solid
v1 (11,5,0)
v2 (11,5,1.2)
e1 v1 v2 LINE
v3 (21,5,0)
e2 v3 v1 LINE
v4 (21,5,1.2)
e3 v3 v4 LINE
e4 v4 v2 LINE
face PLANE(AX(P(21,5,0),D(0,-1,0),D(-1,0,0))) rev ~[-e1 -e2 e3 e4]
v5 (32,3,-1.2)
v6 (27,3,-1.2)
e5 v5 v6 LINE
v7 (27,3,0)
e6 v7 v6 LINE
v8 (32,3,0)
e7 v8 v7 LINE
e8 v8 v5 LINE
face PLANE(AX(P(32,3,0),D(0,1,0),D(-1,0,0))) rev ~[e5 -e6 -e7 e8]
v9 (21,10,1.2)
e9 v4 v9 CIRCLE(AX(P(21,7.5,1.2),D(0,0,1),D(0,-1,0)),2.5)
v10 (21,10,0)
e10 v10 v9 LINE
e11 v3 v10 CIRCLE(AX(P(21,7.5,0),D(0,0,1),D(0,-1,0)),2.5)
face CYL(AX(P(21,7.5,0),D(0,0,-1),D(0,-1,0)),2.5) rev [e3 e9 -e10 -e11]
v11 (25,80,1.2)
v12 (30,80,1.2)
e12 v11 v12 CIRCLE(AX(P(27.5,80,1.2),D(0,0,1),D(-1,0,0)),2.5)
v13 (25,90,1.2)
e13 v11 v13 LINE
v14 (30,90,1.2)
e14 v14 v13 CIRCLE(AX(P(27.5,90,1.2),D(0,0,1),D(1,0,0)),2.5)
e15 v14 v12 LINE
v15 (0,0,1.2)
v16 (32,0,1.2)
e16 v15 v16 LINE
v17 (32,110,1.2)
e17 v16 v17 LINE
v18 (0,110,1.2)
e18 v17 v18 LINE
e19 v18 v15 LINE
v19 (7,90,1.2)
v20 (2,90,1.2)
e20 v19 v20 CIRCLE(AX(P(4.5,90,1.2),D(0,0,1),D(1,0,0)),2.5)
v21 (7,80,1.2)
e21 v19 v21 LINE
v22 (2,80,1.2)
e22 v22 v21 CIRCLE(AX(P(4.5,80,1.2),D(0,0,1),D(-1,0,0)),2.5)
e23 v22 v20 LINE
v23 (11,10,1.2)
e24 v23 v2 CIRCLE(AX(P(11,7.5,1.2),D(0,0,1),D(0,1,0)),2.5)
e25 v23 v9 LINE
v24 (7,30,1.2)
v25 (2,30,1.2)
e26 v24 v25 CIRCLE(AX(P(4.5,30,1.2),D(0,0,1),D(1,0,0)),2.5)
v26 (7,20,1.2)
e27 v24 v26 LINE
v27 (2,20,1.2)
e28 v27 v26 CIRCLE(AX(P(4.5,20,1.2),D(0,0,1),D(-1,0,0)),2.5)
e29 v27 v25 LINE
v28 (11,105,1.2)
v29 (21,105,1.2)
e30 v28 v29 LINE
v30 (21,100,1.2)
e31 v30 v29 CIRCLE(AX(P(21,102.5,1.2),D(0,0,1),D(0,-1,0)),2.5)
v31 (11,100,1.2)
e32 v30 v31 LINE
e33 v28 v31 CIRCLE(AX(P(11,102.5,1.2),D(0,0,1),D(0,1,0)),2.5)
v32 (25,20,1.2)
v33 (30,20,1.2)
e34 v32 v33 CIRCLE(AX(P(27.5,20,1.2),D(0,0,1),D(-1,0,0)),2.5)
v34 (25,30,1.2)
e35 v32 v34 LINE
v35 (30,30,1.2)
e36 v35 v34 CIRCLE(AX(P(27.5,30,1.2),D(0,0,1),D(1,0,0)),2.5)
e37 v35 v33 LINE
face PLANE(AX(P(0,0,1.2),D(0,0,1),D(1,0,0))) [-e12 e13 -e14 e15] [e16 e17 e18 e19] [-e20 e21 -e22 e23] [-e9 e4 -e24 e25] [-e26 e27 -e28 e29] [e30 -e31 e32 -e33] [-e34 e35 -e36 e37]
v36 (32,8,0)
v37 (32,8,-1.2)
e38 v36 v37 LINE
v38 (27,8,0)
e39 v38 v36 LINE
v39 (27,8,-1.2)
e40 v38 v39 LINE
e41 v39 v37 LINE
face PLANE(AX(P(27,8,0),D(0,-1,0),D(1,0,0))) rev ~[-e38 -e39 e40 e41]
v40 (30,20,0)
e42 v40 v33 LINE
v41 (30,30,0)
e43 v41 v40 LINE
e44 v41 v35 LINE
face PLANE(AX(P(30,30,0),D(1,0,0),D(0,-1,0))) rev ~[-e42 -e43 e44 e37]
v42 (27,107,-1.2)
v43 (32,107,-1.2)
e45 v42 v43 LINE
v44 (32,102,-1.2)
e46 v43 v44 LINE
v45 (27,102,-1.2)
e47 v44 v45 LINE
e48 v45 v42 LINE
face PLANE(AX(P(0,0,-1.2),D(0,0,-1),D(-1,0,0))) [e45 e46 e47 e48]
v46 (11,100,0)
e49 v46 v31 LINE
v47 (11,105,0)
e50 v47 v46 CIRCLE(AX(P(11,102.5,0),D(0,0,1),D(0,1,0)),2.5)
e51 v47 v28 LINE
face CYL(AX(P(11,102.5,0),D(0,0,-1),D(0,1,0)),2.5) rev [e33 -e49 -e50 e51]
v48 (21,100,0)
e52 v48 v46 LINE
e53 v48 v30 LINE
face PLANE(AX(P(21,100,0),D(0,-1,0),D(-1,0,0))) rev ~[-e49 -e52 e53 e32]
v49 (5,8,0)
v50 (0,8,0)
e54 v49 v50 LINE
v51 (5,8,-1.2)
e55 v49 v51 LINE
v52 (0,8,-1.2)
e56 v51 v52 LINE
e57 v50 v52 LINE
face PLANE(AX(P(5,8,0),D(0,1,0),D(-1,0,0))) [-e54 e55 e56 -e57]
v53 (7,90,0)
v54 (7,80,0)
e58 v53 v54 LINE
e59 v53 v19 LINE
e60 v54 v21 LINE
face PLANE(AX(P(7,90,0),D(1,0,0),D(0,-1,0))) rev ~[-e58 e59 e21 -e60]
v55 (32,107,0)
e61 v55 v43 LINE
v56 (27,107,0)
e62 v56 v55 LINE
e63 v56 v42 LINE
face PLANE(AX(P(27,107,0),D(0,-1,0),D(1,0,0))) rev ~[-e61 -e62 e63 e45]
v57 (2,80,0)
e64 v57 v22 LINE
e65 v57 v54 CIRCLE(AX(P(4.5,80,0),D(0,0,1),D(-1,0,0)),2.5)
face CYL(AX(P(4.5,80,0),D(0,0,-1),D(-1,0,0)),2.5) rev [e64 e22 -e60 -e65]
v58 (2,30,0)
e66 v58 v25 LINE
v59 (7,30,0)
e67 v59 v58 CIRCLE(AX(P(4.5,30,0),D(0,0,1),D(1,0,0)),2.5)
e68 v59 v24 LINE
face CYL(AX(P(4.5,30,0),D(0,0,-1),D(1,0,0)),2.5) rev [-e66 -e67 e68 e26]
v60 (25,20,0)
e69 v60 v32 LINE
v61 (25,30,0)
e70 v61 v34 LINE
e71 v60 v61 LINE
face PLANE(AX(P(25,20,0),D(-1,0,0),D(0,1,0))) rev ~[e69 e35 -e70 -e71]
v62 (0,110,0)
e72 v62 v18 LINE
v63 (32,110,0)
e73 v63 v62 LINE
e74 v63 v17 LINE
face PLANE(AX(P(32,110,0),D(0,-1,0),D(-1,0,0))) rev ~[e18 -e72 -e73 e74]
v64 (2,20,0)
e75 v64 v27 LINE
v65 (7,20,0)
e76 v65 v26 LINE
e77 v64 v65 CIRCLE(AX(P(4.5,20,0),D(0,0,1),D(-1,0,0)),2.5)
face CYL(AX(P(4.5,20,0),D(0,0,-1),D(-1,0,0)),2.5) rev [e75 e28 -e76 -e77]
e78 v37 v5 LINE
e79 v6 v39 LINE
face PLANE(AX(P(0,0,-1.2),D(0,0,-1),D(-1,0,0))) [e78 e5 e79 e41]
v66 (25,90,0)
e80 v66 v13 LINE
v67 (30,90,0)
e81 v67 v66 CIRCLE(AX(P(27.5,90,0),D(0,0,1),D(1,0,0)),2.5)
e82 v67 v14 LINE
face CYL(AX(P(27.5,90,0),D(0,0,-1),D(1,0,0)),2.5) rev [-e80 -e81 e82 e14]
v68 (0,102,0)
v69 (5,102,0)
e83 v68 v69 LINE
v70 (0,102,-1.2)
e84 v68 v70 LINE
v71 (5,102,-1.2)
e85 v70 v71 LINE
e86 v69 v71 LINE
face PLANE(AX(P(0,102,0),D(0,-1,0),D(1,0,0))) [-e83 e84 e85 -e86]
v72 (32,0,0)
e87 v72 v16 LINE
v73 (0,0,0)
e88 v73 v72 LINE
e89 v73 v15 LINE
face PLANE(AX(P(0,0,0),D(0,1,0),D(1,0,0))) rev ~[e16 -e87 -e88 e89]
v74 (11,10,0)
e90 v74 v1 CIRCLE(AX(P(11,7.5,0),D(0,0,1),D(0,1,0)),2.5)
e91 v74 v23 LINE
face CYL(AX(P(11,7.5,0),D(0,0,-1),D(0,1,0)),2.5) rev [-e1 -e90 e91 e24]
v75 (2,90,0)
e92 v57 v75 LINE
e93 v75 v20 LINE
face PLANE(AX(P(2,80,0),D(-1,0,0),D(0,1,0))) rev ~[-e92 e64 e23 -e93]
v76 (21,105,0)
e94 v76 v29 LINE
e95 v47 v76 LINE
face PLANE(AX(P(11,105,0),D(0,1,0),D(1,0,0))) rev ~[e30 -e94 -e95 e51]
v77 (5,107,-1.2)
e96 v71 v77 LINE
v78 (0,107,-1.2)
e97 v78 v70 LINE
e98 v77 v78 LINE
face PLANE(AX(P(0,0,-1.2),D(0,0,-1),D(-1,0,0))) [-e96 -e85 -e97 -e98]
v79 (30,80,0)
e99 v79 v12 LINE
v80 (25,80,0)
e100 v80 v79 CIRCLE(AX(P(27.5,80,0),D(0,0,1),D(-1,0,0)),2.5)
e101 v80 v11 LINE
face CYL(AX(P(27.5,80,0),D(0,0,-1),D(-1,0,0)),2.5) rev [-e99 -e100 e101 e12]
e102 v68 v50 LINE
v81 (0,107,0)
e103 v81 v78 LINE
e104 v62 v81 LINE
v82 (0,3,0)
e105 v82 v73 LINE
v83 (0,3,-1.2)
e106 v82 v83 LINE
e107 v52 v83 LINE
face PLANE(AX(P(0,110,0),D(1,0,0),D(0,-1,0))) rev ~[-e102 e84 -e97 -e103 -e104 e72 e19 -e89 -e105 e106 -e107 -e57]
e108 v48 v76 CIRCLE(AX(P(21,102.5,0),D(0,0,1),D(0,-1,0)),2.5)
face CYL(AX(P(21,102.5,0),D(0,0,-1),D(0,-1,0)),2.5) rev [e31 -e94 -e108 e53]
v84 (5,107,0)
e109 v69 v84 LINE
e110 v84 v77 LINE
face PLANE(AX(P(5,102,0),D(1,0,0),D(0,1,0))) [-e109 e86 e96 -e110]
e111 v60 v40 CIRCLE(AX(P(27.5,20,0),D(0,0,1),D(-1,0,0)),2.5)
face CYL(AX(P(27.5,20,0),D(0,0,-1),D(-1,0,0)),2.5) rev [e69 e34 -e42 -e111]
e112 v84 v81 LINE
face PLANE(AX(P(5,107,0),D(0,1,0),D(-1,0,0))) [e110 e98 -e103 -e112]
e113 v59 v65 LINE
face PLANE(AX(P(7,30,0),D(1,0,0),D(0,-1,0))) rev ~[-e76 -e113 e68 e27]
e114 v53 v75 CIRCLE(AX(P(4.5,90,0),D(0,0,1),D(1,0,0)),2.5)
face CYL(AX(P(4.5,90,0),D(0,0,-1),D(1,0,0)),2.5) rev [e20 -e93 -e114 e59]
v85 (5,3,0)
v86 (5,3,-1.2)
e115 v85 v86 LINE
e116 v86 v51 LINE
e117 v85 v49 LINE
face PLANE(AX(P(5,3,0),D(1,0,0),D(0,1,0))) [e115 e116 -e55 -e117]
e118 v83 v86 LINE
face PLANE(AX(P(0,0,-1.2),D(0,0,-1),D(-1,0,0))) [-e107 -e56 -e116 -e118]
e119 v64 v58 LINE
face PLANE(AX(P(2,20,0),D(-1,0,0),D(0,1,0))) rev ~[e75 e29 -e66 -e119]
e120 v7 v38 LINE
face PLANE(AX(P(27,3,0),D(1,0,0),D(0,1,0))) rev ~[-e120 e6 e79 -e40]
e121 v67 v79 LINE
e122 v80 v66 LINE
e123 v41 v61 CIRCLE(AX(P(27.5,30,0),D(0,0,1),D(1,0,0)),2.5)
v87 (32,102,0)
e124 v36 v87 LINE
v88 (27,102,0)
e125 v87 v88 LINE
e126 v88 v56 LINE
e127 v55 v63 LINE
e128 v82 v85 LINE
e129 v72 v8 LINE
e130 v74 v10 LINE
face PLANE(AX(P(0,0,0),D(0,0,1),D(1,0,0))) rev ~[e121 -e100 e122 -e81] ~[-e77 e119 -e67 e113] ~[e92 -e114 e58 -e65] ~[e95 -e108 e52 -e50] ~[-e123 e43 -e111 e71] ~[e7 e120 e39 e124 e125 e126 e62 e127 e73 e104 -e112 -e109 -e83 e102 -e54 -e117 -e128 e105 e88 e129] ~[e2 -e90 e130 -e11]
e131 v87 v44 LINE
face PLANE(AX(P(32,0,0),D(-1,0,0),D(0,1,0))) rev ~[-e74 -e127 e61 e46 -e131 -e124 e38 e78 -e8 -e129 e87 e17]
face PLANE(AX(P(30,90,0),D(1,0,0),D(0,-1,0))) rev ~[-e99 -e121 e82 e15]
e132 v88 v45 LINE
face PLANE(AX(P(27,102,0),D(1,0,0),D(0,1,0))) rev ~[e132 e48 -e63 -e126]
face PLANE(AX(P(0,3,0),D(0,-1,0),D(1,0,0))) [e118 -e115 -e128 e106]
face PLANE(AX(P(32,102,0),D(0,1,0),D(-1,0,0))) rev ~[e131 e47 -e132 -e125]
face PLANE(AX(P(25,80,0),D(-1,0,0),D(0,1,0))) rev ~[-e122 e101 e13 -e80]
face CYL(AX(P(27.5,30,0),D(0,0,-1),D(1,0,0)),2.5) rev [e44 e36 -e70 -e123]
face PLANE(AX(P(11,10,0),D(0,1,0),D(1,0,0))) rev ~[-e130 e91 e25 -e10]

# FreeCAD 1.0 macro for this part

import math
import FreeCAD as App
import Part
import Sketcher

V = App.Vector
Q = App.Units.Quantity

doc = App.newDocument("Part")
body = doc.addObject("PartDesign::Body", "Body")

sketch1 = body.newObject("Sketcher::SketchObject", "Sketch")
sketch1.AttachmentSupport = (doc.getObject("XY_Plane"), [""])
sketch1.MapMode = "FlatFace"
sketch1.addGeometry([
    Part.LineSegment(V(0, 110, 0), V(0, 0, 0)),
    Part.LineSegment(V(0, 0, 0), V(32, 0, 0)),
    Part.LineSegment(V(32, 0, 0), V(32, 110, 0)),
    Part.LineSegment(V(32, 110, 0), V(0, 110, 0)),
    Part.ArcOfCircle(Part.Circle(V(4.5, 30, 0), V(0, 0, 1), 2.5), math.radians(0), math.radians(180)),
    Part.LineSegment(V(7, 30, 0), V(7, 20, 0)),
    Part.ArcOfCircle(Part.Circle(V(4.5, 20, 0), V(0, 0, 1), 2.5), math.radians(180), math.radians(360)),
    Part.LineSegment(V(2, 20, 0), V(2, 30, 0)),
    Part.ArcOfCircle(Part.Circle(V(11, 7.5, 0), V(0, 0, 1), 2.5), math.radians(90), math.radians(270)),
    Part.LineSegment(V(11, 10, 0), V(21, 10, 0)),
    Part.ArcOfCircle(Part.Circle(V(21, 7.5, 0), V(0, 0, 1), 2.5), math.radians(-90), math.radians(90)),
    Part.LineSegment(V(21, 5, 0), V(11, 5, 0)),
    Part.ArcOfCircle(Part.Circle(V(27.5, 30, 0), V(0, 0, 1), 2.5), math.radians(0), math.radians(180)),
    Part.LineSegment(V(30, 30, 0), V(30, 20, 0)),
    Part.ArcOfCircle(Part.Circle(V(27.5, 20, 0), V(0, 0, 1), 2.5), math.radians(180), math.radians(360)),
    Part.LineSegment(V(25, 20, 0), V(25, 30, 0)),
    Part.ArcOfCircle(Part.Circle(V(4.5, 90, 0), V(0, 0, 1), 2.5), math.radians(0), math.radians(180)),
    Part.LineSegment(V(7, 90, 0), V(7, 80, 0)),
    Part.ArcOfCircle(Part.Circle(V(4.5, 80, 0), V(0, 0, 1), 2.5), math.radians(180), math.radians(360)),
    Part.LineSegment(V(2, 80, 0), V(2, 90, 0)),
    Part.ArcOfCircle(Part.Circle(V(11, 102.5, 0), V(0, 0, 1), 2.5), math.radians(90), math.radians(270)),
    Part.LineSegment(V(11, 105, 0), V(21, 105, 0)),
    Part.ArcOfCircle(Part.Circle(V(21, 102.5, 0), V(0, 0, 1), 2.5), math.radians(-90), math.radians(90)),
    Part.LineSegment(V(21, 100, 0), V(11, 100, 0)),
    Part.ArcOfCircle(Part.Circle(V(27.5, 90, 0), V(0, 0, 1), 2.5), math.radians(0), math.radians(180)),
    Part.LineSegment(V(30, 90, 0), V(30, 80, 0)),
    Part.ArcOfCircle(Part.Circle(V(27.5, 80, 0), V(0, 0, 1), 2.5), math.radians(180), math.radians(360)),
    Part.LineSegment(V(25, 80, 0), V(25, 90, 0)),
], False)
sketch1.addConstraint([
    Sketcher.Constraint("Coincident", 0, 2, 1, 1),
    Sketcher.Constraint("Coincident", 1, 2, 2, 1),
    Sketcher.Constraint("Coincident", 2, 2, 3, 1),
    Sketcher.Constraint("Coincident", 3, 2, 0, 1),
    Sketcher.Constraint("Tangent", 4, 1, 5, 1),
    Sketcher.Constraint("Tangent", 5, 2, 6, 2),
    Sketcher.Constraint("Tangent", 6, 1, 7, 1),
    Sketcher.Constraint("Tangent", 7, 2, 4, 2),
    Sketcher.Constraint("Tangent", 8, 1, 9, 1),
    Sketcher.Constraint("Tangent", 9, 2, 10, 2),
    Sketcher.Constraint("Tangent", 10, 1, 11, 1),
    Sketcher.Constraint("Tangent", 11, 2, 8, 2),
    Sketcher.Constraint("Tangent", 12, 1, 13, 1),
    Sketcher.Constraint("Tangent", 13, 2, 14, 2),
    Sketcher.Constraint("Tangent", 14, 1, 15, 1),
    Sketcher.Constraint("Tangent", 15, 2, 12, 2),
    Sketcher.Constraint("Tangent", 16, 1, 17, 1),
    Sketcher.Constraint("Tangent", 17, 2, 18, 2),
    Sketcher.Constraint("Tangent", 18, 1, 19, 1),
    Sketcher.Constraint("Tangent", 19, 2, 16, 2),
    Sketcher.Constraint("Tangent", 20, 1, 21, 1),
    Sketcher.Constraint("Tangent", 21, 2, 22, 2),
    Sketcher.Constraint("Tangent", 22, 1, 23, 1),
    Sketcher.Constraint("Tangent", 23, 2, 20, 2),
    Sketcher.Constraint("Tangent", 24, 1, 25, 1),
    Sketcher.Constraint("Tangent", 25, 2, 26, 2),
    Sketcher.Constraint("Tangent", 26, 1, 27, 1),
    Sketcher.Constraint("Tangent", 27, 2, 24, 2),
    Sketcher.Constraint("Vertical", 0),
    Sketcher.Constraint("Horizontal", 1),
    Sketcher.Constraint("Vertical", 2),
    Sketcher.Constraint("Horizontal", 3),
    Sketcher.Constraint("Vertical", 5),
    Sketcher.Constraint("Vertical", 7),
    Sketcher.Constraint("Horizontal", 9),
    Sketcher.Constraint("Horizontal", 11),
    Sketcher.Constraint("Vertical", 13),
    Sketcher.Constraint("Vertical", 15),
    Sketcher.Constraint("Vertical", 17),
    Sketcher.Constraint("Vertical", 19),
    Sketcher.Constraint("Horizontal", 21),
    Sketcher.Constraint("Horizontal", 23),
    Sketcher.Constraint("Vertical", 25),
    Sketcher.Constraint("Vertical", 27),
    Sketcher.Constraint("Coincident", 0, 2, -1, 1),
    Sketcher.Constraint("Equal", 6, 8),
    Sketcher.Constraint("Equal", 10, 12),
    Sketcher.Constraint("Equal", 14, 16),
    Sketcher.Constraint("Equal", 18, 20),
    Sketcher.Constraint("Equal", 22, 24),
    Sketcher.Constraint("Horizontal", 4, 3, 12, 3),
    Sketcher.Constraint("Horizontal", 6, 3, 14, 3),
    Sketcher.Constraint("Horizontal", 16, 3, 24, 3),
    Sketcher.Constraint("Horizontal", 18, 3, 26, 3),
    Sketcher.Constraint("Vertical", 6, 3, 16, 3),
    Sketcher.Constraint("Vertical", 8, 3, 20, 3),
    Sketcher.Constraint("Vertical", 10, 3, 22, 3),
    Sketcher.Constraint("Vertical", 14, 3, 24, 3),
    Sketcher.Constraint("Equal", 23, 5),
    Sketcher.Constraint("Equal", 15, 17),
    Sketcher.Constraint("Radius", 4, Q("2.5 mm")),
    Sketcher.Constraint("DistanceX", 1, 1, 1, 2, Q("32 mm")),
    Sketcher.Constraint("DistanceX", 9, 1, 9, 2, Q("10 mm")),
    Sketcher.Constraint("DistanceY", 0, 2, 0, 1, Q("110 mm")),
    Sketcher.Constraint("DistanceX", -1, 1, 6, 1, Q("2 mm")),
    Sketcher.Constraint("DistanceY", -1, 1, 8, 1, Q("10 mm")),
    Sketcher.Constraint("DistanceY", 4, 3, 18, 3, Q("50 mm")),
    Sketcher.Constraint("DistanceY", 8, 1, 5, 2, Q("10 mm")),
    Sketcher.Constraint("DistanceY", 20, 1, 3, 2, Q("5 mm")),
    Sketcher.Constraint("DistanceX", -1, 1, 8, 3, Q("11 mm")),
    Sketcher.Constraint("DistanceX", -1, 1, 12, 1, Q("30 mm")),
])
pad1 = body.newObject("PartDesign::Pad", "Pad")
pad1.Profile = sketch1
pad1.Length = 1.2

sketch2 = body.newObject("Sketcher::SketchObject", "Sketch001")
sketch2.AttachmentSupport = (doc.getObject("XY_Plane"), [""])
sketch2.MapMode = "FlatFace"
sketch2.addGeometry([
    Part.LineSegment(V(32, 8, 0), V(32, 3, 0)),
    Part.LineSegment(V(32, 3, 0), V(27, 3, 0)),
    Part.LineSegment(V(27, 3, 0), V(27, 8, 0)),
    Part.LineSegment(V(27, 8, 0), V(32, 8, 0)),
    Part.LineSegment(V(5, 3, 0), V(0, 3, 0)),
    Part.LineSegment(V(0, 3, 0), V(0, 8, 0)),
    Part.LineSegment(V(0, 8, 0), V(5, 8, 0)),
    Part.LineSegment(V(5, 8, 0), V(5, 3, 0)),
    Part.LineSegment(V(5, 102, 0), V(0, 102, 0)),
    Part.LineSegment(V(0, 102, 0), V(0, 107, 0)),
    Part.LineSegment(V(0, 107, 0), V(5, 107, 0)),
    Part.LineSegment(V(5, 107, 0), V(5, 102, 0)),
    Part.LineSegment(V(27, 102, 0), V(27, 107, 0)),
    Part.LineSegment(V(27, 107, 0), V(32, 107, 0)),
    Part.LineSegment(V(32, 107, 0), V(32, 102, 0)),
    Part.LineSegment(V(32, 102, 0), V(27, 102, 0)),
], False)
sketch2.addConstraint([
    Sketcher.Constraint("Coincident", 0, 2, 1, 1),
    Sketcher.Constraint("Coincident", 1, 2, 2, 1),
    Sketcher.Constraint("Coincident", 2, 2, 3, 1),
    Sketcher.Constraint("Coincident", 3, 2, 0, 1),
    Sketcher.Constraint("Coincident", 4, 2, 5, 1),
    Sketcher.Constraint("Coincident", 5, 2, 6, 1),
    Sketcher.Constraint("Coincident", 6, 2, 7, 1),
    Sketcher.Constraint("Coincident", 7, 2, 4, 1),
    Sketcher.Constraint("Coincident", 8, 2, 9, 1),
    Sketcher.Constraint("Coincident", 9, 2, 10, 1),
    Sketcher.Constraint("Coincident", 10, 2, 11, 1),
    Sketcher.Constraint("Coincident", 11, 2, 8, 1),
    Sketcher.Constraint("Coincident", 12, 2, 13, 1),
    Sketcher.Constraint("Coincident", 13, 2, 14, 1),
    Sketcher.Constraint("Coincident", 14, 2, 15, 1),
    Sketcher.Constraint("Coincident", 15, 2, 12, 1),
    Sketcher.Constraint("Vertical", 0),
    Sketcher.Constraint("Horizontal", 1),
    Sketcher.Constraint("Vertical", 2),
    Sketcher.Constraint("Horizontal", 3),
    Sketcher.Constraint("Horizontal", 4),
    Sketcher.Constraint("Vertical", 5),
    Sketcher.Constraint("Horizontal", 6),
    Sketcher.Constraint("Vertical", 7),
    Sketcher.Constraint("Horizontal", 8),
    Sketcher.Constraint("Vertical", 9),
    Sketcher.Constraint("Horizontal", 10),
    Sketcher.Constraint("Vertical", 11),
    Sketcher.Constraint("Vertical", 12),
    Sketcher.Constraint("Horizontal", 13),
    Sketcher.Constraint("Vertical", 14),
    Sketcher.Constraint("Horizontal", 15),
    Sketcher.Constraint("PointOnObject", 4, 2, -2),
    Sketcher.Constraint("PointOnObject", 8, 2, -2),
    Sketcher.Constraint("Horizontal", 1, 2, 4, 2),
    Sketcher.Constraint("Horizontal", 3, 2, 5, 2),
    Sketcher.Constraint("Horizontal", 10, 2, 12, 2),
    Sketcher.Constraint("Horizontal", 11, 2, 14, 2),
    Sketcher.Constraint("Vertical", 7, 2, 10, 2),
    Sketcher.Constraint("Vertical", 2, 2, 12, 2),
    Sketcher.Constraint("Vertical", 3, 2, 13, 2),
    Sketcher.Constraint("Equal", 3, 4),
    Sketcher.Constraint("Equal", 15, 0),
    Sketcher.Constraint("Equal", 7, 9),
    Sketcher.Constraint("DistanceX", 1, 2, 1, 1, Q("5 mm")),
    Sketcher.Constraint("DistanceY", -1, 1, 0, 2, Q("3 mm")),
    Sketcher.Constraint("DistanceX", -1, 1, 0, 2, Q("32 mm")),
    Sketcher.Constraint("DistanceY", -1, 1, 8, 2, Q("102 mm")),
])
pad2 = body.newObject("PartDesign::Pad", "Pad001")
pad2.Profile = sketch2
pad2.Length = 1.2
pad2.Reversed = True

doc.recompute()
